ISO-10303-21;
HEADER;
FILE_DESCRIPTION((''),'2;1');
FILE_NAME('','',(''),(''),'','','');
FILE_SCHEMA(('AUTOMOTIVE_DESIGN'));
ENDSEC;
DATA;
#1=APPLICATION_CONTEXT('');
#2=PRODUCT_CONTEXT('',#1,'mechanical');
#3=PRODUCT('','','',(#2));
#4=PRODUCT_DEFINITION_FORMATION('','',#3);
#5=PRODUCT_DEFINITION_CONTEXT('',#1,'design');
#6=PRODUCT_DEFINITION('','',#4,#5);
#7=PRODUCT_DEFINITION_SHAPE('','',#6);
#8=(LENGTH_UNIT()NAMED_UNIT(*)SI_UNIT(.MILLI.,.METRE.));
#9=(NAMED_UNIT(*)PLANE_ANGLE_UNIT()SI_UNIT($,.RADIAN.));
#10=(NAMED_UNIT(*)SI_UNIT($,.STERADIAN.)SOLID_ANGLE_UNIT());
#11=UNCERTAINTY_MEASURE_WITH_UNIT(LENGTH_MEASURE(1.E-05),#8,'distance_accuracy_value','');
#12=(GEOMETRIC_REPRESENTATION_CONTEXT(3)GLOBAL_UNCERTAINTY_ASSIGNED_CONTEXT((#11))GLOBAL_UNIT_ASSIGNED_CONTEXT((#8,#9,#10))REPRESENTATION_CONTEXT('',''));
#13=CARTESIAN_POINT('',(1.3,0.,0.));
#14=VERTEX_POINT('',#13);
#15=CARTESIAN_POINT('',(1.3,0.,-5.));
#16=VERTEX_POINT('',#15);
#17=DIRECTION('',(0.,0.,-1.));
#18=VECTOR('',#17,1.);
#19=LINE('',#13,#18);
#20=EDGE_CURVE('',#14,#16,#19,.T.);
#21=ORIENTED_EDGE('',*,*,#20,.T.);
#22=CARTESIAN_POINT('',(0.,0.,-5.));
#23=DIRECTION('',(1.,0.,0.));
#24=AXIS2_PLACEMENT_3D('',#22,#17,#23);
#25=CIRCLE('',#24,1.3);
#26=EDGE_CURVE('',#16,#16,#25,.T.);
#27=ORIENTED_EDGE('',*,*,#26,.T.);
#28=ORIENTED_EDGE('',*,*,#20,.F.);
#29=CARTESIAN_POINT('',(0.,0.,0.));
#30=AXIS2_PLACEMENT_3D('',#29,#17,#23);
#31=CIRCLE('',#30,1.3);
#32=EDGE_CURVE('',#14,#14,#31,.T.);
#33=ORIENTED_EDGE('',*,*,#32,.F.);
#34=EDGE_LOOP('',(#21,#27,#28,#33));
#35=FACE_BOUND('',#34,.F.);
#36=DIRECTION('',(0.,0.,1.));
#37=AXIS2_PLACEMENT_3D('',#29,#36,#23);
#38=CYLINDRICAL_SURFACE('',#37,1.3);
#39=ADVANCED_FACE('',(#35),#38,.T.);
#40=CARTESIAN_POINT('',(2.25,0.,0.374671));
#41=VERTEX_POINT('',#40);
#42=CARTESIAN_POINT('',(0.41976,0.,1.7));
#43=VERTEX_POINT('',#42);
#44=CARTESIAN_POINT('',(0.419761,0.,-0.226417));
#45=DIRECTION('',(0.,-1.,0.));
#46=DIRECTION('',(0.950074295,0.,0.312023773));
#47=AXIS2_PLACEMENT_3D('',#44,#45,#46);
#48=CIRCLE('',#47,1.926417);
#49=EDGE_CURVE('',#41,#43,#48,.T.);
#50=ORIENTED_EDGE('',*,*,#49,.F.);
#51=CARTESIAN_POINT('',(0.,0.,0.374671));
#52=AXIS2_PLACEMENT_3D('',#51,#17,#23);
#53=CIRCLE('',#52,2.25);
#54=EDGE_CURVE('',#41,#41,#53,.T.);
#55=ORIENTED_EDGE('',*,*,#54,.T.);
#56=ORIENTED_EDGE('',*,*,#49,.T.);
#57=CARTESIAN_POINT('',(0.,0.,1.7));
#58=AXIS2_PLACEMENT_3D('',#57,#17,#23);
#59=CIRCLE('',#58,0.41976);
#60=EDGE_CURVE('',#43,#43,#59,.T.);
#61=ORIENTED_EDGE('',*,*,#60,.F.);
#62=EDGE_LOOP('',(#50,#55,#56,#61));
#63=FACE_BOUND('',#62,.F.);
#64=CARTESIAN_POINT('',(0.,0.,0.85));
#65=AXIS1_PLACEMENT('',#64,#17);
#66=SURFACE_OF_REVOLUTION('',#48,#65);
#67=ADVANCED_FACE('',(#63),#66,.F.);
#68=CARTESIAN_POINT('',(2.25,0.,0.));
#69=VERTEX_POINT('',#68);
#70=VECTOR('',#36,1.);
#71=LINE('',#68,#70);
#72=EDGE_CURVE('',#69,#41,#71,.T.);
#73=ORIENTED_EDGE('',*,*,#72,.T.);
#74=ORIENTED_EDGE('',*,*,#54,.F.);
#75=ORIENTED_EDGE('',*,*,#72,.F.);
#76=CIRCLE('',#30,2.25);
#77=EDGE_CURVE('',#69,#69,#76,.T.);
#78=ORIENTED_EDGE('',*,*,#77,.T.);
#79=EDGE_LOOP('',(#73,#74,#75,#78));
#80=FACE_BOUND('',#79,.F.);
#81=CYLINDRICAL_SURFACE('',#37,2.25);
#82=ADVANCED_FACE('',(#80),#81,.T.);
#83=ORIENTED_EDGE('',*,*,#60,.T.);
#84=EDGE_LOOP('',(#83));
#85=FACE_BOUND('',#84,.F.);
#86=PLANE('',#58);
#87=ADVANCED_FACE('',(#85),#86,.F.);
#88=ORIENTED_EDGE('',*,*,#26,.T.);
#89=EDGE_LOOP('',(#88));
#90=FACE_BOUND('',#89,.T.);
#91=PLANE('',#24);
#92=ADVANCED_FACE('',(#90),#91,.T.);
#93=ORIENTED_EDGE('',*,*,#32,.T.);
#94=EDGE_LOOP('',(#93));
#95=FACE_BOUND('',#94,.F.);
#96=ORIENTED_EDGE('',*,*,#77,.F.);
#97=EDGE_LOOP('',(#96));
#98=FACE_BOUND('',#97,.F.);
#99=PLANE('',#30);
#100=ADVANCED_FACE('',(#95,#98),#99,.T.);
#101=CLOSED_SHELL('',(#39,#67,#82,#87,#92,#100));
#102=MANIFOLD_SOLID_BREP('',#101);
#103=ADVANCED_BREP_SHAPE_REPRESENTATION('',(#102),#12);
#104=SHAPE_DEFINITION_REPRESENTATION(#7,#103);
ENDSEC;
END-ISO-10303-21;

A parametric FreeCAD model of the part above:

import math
import FreeCAD as App
import Part
import Sketcher
from FreeCAD import Vector

doc = App.newDocument("Part")
params = doc.addObject("Spreadsheet::Sheet", "Params")
for row, (alias, value) in enumerate([
    ("sketch1_height", "1.7 mm"),
    ("sketch1_width", "2.25 mm"),
    ("revolution_angle", "360 deg"),
    ("sketch2_diameter", "2.6 mm"),
    ("pad1_length", "5 mm"),
], start=1):
    params.set(f"A{row}", alias)
    params.set(f"B{row}", "=" + value)
    params.setAlias(f"B{row}", alias)

body = doc.addObject("PartDesign::Body", "Body")

sketch1 = doc.addObject("Sketcher::SketchObject", "Sketch")
body.addObject(sketch1)
sketch1.AttachmentSupport = (doc.XZ_Plane, [""])
sketch1.MapMode = "FlatFace"
sketch1.addGeometry([
    Part.LineSegment(Vector(0, 1.7, 0), Vector(0, 0, 0)),
    Part.LineSegment(Vector(0, 0, 0), Vector(2.25, 0, 0)),
    Part.LineSegment(Vector(2.25, 0, 0), Vector(2.25, 0.374671, 0)),
    Part.ArcOfCircle(Part.Circle(Vector(0.419761, -0.226417, 0), Vector(0, 0, 1), 1.926417), math.radians(18.181235), math.radians(90.000026)),
    Part.LineSegment(Vector(0.41976, 1.7, 0), Vector(0, 1.7, 0)),
], False)
sketch1.addConstraint([
    Sketcher.Constraint("Coincident", 0, 2, 1, 1),
    Sketcher.Constraint("Coincident", 1, 2, 2, 1),
    Sketcher.Constraint("Coincident", 2, 2, 3, 1),
    Sketcher.Constraint("Tangent", 3, 2, 4, 1),
    Sketcher.Constraint("Coincident", 4, 2, 0, 1),
    Sketcher.Constraint("Vertical", 0),
    Sketcher.Constraint("Horizontal", 1),
    Sketcher.Constraint("Vertical", 2),
    Sketcher.Constraint("Horizontal", 4),
    Sketcher.Constraint("Coincident", 0, 2, -1, 1),
    Sketcher.Constraint("DistanceY", 0, 2, 0, 1, 1.7),
    Sketcher.Constraint("DistanceX", 1, 1, 1, 2, 2.25),
    Sketcher.Constraint("Radius", 3, 1.926417),
    Sketcher.Constraint("DistanceX", 4, 2, 4, 1, 0.41976),
])
sketch1.setExpression("Constraints[10]", "Params.sketch1_height")
sketch1.setExpression("Constraints[11]", "Params.sketch1_width")
revolution = doc.addObject("PartDesign::Revolution", "Revolution")
body.addObject(revolution)
revolution.Profile = sketch1
revolution.ReferenceAxis = (sketch1, ["V_Axis"])
revolution.setExpression("Angle", "Params.revolution_angle")

sketch2 = doc.addObject("Sketcher::SketchObject", "Sketch001")
body.addObject(sketch2)
sketch2.AttachmentSupport = (doc.XY_Plane, [""])
sketch2.MapMode = "FlatFace"
sketch2.addGeometry(Part.Circle(Vector(0, 0, 0), Vector(0, 0, 1), 1.3), False)
sketch2.addConstraint([
    Sketcher.Constraint("Coincident", 0, 3, -1, 1),
    Sketcher.Constraint("Diameter", 0, 2.6),
])
sketch2.setExpression("Constraints[1]", "Params.sketch2_diameter")
pad1 = doc.addObject("PartDesign::Pad", "Pad")
body.addObject(pad1)
pad1.Profile = sketch2
pad1.setExpression("Length", "Params.pad1_length")
pad1.Reversed = True

doc.recompute()
